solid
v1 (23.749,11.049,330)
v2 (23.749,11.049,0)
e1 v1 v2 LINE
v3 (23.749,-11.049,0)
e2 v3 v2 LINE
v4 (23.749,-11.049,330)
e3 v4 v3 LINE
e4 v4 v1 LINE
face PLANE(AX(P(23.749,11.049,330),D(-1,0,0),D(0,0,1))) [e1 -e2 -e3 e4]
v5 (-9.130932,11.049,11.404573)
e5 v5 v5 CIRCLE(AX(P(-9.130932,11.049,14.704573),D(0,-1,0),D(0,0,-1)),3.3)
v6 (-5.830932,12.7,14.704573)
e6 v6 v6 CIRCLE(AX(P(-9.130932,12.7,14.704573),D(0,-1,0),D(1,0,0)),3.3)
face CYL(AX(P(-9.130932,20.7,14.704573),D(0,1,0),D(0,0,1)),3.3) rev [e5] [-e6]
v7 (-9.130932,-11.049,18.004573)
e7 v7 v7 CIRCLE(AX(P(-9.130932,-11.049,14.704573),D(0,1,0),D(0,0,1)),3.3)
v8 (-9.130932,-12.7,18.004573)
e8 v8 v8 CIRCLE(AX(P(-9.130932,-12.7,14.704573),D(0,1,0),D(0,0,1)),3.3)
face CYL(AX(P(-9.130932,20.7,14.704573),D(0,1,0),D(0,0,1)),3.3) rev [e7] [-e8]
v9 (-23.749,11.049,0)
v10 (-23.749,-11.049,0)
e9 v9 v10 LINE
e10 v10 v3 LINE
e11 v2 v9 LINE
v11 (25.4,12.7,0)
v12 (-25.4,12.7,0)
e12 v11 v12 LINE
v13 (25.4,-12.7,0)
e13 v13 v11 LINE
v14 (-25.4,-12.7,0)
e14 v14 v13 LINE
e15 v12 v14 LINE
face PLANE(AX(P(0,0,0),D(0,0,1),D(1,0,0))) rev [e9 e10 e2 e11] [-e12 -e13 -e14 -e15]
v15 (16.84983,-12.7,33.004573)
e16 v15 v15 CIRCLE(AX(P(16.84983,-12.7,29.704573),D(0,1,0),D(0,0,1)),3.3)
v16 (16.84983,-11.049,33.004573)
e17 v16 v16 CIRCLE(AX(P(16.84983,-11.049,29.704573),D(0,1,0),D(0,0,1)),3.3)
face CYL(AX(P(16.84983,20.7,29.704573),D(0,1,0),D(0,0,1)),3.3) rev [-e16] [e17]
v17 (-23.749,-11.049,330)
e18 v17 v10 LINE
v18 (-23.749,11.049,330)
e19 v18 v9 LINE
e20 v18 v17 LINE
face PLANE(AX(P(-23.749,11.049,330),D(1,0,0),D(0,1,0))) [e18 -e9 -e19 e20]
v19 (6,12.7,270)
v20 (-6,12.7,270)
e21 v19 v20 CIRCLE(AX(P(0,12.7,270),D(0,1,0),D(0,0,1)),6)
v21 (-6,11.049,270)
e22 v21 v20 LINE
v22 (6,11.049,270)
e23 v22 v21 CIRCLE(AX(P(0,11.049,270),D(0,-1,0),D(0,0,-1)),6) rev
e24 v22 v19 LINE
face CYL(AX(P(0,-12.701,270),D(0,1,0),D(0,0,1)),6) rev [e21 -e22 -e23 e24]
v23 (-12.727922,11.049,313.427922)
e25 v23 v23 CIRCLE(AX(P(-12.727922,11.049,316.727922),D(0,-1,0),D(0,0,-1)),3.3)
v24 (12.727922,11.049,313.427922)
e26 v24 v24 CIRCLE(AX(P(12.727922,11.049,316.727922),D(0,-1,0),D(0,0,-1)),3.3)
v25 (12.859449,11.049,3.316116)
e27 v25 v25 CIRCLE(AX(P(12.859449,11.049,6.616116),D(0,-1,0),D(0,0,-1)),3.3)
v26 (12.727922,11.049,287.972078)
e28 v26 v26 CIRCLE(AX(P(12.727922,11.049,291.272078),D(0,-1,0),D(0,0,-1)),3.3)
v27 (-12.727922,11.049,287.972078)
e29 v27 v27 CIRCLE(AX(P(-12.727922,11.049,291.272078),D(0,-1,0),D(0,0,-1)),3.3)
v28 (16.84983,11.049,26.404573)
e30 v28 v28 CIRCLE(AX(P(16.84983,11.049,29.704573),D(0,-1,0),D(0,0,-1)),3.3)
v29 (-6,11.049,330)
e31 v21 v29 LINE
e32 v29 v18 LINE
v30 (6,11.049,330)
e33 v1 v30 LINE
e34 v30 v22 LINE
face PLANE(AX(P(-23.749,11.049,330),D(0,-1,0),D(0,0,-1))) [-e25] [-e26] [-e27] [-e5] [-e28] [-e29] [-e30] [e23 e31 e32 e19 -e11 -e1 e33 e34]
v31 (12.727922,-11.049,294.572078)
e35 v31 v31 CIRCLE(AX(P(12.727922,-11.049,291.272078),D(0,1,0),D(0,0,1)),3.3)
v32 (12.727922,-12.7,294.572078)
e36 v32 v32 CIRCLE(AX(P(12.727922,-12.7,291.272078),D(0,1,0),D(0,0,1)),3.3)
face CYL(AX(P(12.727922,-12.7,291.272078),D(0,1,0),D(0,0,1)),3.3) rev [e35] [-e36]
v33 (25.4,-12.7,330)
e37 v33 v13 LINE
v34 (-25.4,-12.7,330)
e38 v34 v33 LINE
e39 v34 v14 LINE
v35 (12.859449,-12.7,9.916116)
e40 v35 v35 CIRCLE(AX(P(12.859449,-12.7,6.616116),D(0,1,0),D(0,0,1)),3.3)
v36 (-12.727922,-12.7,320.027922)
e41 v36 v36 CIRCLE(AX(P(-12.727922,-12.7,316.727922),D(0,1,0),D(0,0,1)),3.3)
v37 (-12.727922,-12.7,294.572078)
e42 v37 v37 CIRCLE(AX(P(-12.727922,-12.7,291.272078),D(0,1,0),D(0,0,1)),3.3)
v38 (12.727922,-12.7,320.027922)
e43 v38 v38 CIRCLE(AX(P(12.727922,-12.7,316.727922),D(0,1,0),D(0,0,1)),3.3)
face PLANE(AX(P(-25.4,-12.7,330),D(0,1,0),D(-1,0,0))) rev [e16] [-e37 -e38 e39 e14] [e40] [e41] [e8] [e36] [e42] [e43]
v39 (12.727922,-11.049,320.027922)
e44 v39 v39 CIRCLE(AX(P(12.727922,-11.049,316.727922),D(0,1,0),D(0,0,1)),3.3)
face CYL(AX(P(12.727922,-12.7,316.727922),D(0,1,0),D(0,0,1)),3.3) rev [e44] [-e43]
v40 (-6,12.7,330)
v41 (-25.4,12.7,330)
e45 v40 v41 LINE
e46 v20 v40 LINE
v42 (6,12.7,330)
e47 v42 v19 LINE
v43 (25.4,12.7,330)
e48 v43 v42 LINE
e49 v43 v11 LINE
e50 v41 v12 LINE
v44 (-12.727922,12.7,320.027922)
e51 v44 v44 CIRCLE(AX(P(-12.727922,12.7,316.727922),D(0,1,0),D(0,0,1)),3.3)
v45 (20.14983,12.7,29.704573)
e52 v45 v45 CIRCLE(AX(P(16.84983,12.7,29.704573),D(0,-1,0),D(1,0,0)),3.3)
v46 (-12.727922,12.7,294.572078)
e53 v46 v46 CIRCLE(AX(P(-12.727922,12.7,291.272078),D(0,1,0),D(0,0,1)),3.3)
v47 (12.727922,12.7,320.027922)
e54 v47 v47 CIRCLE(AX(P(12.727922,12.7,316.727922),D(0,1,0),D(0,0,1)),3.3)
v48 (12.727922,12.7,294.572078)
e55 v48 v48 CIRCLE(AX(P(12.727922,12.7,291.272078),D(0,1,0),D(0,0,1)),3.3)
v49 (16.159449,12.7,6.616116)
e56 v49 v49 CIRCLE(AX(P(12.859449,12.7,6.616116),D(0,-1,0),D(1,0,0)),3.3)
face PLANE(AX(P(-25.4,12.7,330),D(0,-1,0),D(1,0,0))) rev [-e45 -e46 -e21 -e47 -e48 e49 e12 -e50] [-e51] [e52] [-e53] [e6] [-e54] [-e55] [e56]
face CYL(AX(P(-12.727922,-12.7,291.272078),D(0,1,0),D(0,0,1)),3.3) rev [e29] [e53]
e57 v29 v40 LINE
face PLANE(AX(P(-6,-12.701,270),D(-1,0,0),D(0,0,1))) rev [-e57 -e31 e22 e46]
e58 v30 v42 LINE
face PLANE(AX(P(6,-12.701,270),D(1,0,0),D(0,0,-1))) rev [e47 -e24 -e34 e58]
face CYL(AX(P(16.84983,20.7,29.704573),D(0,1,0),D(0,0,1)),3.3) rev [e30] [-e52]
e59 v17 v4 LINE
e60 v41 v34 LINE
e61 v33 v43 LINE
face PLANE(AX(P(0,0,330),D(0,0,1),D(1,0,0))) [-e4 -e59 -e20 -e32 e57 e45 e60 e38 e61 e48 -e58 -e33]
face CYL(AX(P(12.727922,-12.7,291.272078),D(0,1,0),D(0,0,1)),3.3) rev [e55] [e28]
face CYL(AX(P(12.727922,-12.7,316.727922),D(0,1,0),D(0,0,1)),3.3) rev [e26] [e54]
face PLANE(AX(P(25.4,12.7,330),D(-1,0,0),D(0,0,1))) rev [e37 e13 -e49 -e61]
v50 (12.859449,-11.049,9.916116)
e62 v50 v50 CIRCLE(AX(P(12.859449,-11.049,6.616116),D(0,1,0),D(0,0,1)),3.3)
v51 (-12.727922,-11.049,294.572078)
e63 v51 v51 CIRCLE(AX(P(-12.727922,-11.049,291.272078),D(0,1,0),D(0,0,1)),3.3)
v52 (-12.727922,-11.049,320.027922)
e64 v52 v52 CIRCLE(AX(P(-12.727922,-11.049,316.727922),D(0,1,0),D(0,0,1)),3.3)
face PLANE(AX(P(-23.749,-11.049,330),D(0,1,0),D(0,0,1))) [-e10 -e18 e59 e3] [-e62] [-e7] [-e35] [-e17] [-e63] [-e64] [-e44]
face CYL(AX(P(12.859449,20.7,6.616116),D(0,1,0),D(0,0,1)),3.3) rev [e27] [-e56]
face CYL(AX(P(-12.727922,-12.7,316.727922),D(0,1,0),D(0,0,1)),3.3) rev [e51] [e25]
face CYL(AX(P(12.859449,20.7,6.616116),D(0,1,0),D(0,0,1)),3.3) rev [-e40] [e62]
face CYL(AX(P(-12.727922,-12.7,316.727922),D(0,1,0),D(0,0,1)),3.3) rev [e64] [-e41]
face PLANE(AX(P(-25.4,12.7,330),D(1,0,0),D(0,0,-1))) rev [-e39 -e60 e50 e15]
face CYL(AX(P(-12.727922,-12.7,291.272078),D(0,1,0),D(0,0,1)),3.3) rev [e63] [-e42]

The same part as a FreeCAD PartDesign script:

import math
import FreeCAD as App
import Part
import Sketcher
from FreeCAD import Vector


def add_polygon(sketch, points):
    """Adds a closed chain of lines whose ends are joined by coincident constraints."""
    first, n = sketch.GeometryCount, len(points)
    for a, b in zip(points, points[1:] + points[:1]):
        sketch.addGeometry(Part.LineSegment(App.Vector(*a, 0), App.Vector(*b, 0)), False)
    for i in range(n):
        sketch.addConstraint(Sketcher.Constraint("Coincident", first + i, 2, first + (i + 1) % n, 1))

doc = App.newDocument("Part")
body = doc.addObject("PartDesign::Body", "Body")

# Sketch on XY plane
sketch1 = body.newObject("Sketcher::SketchObject", "Sketch")
sketch1.AttachmentSupport = (doc.getObject("XY_Plane"), [""])
sketch1.MapMode = "FlatFace"
add_polygon(sketch1, [(-25.4, 12.7), (-25.4, -12.7), (25.4, -12.7), (25.4, 12.7)])  # lines 0-3
add_polygon(sketch1, [(23.749, -11.049), (-23.749, -11.049), (-23.749, 11.049), (23.749, 11.049)])  # lines 4-7
sketch1.addConstraint([
    Sketcher.Constraint("Vertical", 0),
    Sketcher.Constraint("Horizontal", 1),
    Sketcher.Constraint("Vertical", 2),
    Sketcher.Constraint("Horizontal", 3),
    Sketcher.Constraint("Horizontal", 4),
    Sketcher.Constraint("Vertical", 5),
    Sketcher.Constraint("Horizontal", 6),
    Sketcher.Constraint("Vertical", 7),
    Sketcher.Constraint("Symmetric", 0, 2, 2, 2, -1, 1),
    Sketcher.Constraint("Symmetric", 4, 2, 6, 2, -1, 1),
    Sketcher.Constraint("DistanceX", 1, 1, 1, 2, 50.8),
    Sketcher.Constraint("DistanceY", 0, 2, 0, 1, 25.4),
    Sketcher.Constraint("DistanceX", 4, 2, 4, 1, 47.498),
    Sketcher.Constraint("DistanceY", 5, 1, 5, 2, 22.098),
])
pad1 = body.newObject("PartDesign::Pad", "Pad")
pad1.Profile = sketch1
pad1.Length = 330

# Sketch on XZ plane
sketch2 = body.newObject("Sketcher::SketchObject", "Sketch001")
sketch2.AttachmentSupport = (doc.getObject("XZ_Plane"), [""])
sketch2.MapMode = "FlatFace"
sketch2.AttachmentOffset = App.Placement(Vector(0, 0, -12.7), App.Rotation())
sketch2.addGeometry([
    Part.LineSegment(Vector(-6, 270, 0), Vector(-6, 330, 0)),
    Part.LineSegment(Vector(-6, 330, 0), Vector(6, 330, 0)),
    Part.LineSegment(Vector(6, 330, 0), Vector(6, 270, 0)),
    Part.ArcOfCircle(Part.Circle(Vector(0, 270, 0), Vector(0, 0, 1), 6), math.radians(180), math.radians(360)),
], False)
sketch2.addConstraint([
    Sketcher.Constraint("Coincident", 0, 2, 1, 1),
    Sketcher.Constraint("Coincident", 1, 2, 2, 1),
    Sketcher.Constraint("Tangent", 2, 2, 3, 2),
    Sketcher.Constraint("Tangent", 3, 1, 0, 1),
    Sketcher.Constraint("Vertical", 0),
    Sketcher.Constraint("Horizontal", 1),
    Sketcher.Constraint("Vertical", 2),
    Sketcher.Constraint("PointOnObject", 3, 3, -2),
    Sketcher.Constraint("Radius", 3, 6.0),
    Sketcher.Constraint("DistanceY", 0, 1, 0, 2, 60.0),
    Sketcher.Constraint("DistanceY", -1, 1, 3, 3, 270.0),
])
pocket1 = body.newObject("PartDesign::Pocket", "Pocket")
pocket1.Profile = sketch2
pocket1.Type = "UpToFirst"
pocket1.Reversed = True

# Sketch on XZ plane
sketch3 = body.newObject("Sketcher::SketchObject", "Sketch002")
sketch3.AttachmentSupport = (doc.getObject("XZ_Plane"), [""])
sketch3.MapMode = "FlatFace"
sketch3.AttachmentOffset = App.Placement(Vector(0, 0, -12.7), App.Rotation())
sketch3.addGeometry([
    Part.ArcOfCircle(Part.Circle(Vector(-12.727922, 316.727922, 0), Vector(0, 0, 1), 3.3), math.radians(-45), math.radians(0)),  # 0
    Part.ArcOfCircle(Part.Circle(Vector(-12.727922, 316.727922, 0), Vector(0, 0, 1), 3.3), math.radians(135), math.radians(315)),  # 1
    Part.ArcOfCircle(Part.Circle(Vector(-12.727922, 316.727922, 0), Vector(0, 0, 1), 3.3), math.radians(0), math.radians(135)),  # 2
    Part.Circle(Vector(-12.727922, 291.272078, 0), Vector(0, 0, 1), 3.3),  # 3
    Part.Circle(Vector(12.727922, 291.272078, 0), Vector(0, 0, 1), 3.3),  # 4
    Part.Circle(Vector(12.727922, 316.727922, 0), Vector(0, 0, 1), 3.3),  # 5
], False)
sketch3.addConstraint([
    Sketcher.Constraint("Tangent", 0, 1, 1, 2),
    Sketcher.Constraint("Tangent", 1, 1, 2, 2),
    Sketcher.Constraint("Tangent", 2, 1, 0, 2),
    Sketcher.Constraint("Equal", 2, 3),
    Sketcher.Constraint("Equal", 3, 4),
    Sketcher.Constraint("Equal", 4, 5),
    Sketcher.Constraint("Symmetric", 3, 3, 4, 3, -2),
    Sketcher.Constraint("Symmetric", 0, 3, 5, 3, -2),
    Sketcher.Constraint("Horizontal", 5, 3, 2, 1),
    Sketcher.Constraint("Vertical", 2, 3, 3, 3),
    Sketcher.Constraint("Diameter", 3, 6.6),
    Sketcher.Constraint("DistanceX", 0, 1, -1, 1, 10.39447),
    Sketcher.Constraint("DistanceY", -1, 1, 0, 1, 314.39447),
    Sketcher.Constraint("DistanceX", 0, 1, 5, 3, 23.122392),
    Sketcher.Constraint("DistanceY", 3, 3, 0, 1, 23.122392),
    Sketcher.Constraint("DistanceX", 1, 1, -1, 1, 15.061374),
])
pocket2 = body.newObject("PartDesign::Pocket", "Pocket001")
pocket2.Profile = sketch3
pocket2.Type = "ThroughAll"
pocket2.Reversed = True

# Sketch on XZ plane
sketch4 = body.newObject("Sketcher::SketchObject", "Sketch003")
sketch4.AttachmentSupport = (doc.getObject("XZ_Plane"), [""])
sketch4.MapMode = "FlatFace"
sketch4.AttachmentOffset = App.Placement(Vector(0, 0, -20.7), App.Rotation())
sketch4.addGeometry([
    Part.Circle(Vector(-9.130932, 14.704573, 0), Vector(0, 0, 1), 3.3),
    Part.Circle(Vector(12.859449, 6.616116, 0), Vector(0, 0, 1), 3.3),
    Part.Circle(Vector(16.84983, 29.704573, 0), Vector(0, 0, 1), 3.3),
], False)
sketch4.addConstraint([
    Sketcher.Constraint("Equal", 0, 1),
    Sketcher.Constraint("Equal", 1, 2),
    Sketcher.Constraint("Diameter", 0, 6.6),
    Sketcher.Constraint("DistanceY", 0, 3, 2, 3, 15.0),
    Sketcher.Constraint("DistanceX", -1, 1, 1, 3, 12.859449),
    Sketcher.Constraint("DistanceX", -1, 1, 2, 3, 16.84983),
    Sketcher.Constraint("DistanceX", 0, 3, 1, 3, 21.990381),
    Sketcher.Constraint("DistanceY", -1, 1, 0, 3, 14.704573),
    Sketcher.Constraint("DistanceY", -1, 1, 1, 3, 6.616116),
])
doc.recompute()
hole = body.newObject("PartDesign::Hole", "Hole")
hole.Profile = sketch4
hole.ThreadType = "None"
hole.Diameter = 6.6
hole.DepthType = "ThroughAll"
hole.Reversed = True

doc.recompute()
